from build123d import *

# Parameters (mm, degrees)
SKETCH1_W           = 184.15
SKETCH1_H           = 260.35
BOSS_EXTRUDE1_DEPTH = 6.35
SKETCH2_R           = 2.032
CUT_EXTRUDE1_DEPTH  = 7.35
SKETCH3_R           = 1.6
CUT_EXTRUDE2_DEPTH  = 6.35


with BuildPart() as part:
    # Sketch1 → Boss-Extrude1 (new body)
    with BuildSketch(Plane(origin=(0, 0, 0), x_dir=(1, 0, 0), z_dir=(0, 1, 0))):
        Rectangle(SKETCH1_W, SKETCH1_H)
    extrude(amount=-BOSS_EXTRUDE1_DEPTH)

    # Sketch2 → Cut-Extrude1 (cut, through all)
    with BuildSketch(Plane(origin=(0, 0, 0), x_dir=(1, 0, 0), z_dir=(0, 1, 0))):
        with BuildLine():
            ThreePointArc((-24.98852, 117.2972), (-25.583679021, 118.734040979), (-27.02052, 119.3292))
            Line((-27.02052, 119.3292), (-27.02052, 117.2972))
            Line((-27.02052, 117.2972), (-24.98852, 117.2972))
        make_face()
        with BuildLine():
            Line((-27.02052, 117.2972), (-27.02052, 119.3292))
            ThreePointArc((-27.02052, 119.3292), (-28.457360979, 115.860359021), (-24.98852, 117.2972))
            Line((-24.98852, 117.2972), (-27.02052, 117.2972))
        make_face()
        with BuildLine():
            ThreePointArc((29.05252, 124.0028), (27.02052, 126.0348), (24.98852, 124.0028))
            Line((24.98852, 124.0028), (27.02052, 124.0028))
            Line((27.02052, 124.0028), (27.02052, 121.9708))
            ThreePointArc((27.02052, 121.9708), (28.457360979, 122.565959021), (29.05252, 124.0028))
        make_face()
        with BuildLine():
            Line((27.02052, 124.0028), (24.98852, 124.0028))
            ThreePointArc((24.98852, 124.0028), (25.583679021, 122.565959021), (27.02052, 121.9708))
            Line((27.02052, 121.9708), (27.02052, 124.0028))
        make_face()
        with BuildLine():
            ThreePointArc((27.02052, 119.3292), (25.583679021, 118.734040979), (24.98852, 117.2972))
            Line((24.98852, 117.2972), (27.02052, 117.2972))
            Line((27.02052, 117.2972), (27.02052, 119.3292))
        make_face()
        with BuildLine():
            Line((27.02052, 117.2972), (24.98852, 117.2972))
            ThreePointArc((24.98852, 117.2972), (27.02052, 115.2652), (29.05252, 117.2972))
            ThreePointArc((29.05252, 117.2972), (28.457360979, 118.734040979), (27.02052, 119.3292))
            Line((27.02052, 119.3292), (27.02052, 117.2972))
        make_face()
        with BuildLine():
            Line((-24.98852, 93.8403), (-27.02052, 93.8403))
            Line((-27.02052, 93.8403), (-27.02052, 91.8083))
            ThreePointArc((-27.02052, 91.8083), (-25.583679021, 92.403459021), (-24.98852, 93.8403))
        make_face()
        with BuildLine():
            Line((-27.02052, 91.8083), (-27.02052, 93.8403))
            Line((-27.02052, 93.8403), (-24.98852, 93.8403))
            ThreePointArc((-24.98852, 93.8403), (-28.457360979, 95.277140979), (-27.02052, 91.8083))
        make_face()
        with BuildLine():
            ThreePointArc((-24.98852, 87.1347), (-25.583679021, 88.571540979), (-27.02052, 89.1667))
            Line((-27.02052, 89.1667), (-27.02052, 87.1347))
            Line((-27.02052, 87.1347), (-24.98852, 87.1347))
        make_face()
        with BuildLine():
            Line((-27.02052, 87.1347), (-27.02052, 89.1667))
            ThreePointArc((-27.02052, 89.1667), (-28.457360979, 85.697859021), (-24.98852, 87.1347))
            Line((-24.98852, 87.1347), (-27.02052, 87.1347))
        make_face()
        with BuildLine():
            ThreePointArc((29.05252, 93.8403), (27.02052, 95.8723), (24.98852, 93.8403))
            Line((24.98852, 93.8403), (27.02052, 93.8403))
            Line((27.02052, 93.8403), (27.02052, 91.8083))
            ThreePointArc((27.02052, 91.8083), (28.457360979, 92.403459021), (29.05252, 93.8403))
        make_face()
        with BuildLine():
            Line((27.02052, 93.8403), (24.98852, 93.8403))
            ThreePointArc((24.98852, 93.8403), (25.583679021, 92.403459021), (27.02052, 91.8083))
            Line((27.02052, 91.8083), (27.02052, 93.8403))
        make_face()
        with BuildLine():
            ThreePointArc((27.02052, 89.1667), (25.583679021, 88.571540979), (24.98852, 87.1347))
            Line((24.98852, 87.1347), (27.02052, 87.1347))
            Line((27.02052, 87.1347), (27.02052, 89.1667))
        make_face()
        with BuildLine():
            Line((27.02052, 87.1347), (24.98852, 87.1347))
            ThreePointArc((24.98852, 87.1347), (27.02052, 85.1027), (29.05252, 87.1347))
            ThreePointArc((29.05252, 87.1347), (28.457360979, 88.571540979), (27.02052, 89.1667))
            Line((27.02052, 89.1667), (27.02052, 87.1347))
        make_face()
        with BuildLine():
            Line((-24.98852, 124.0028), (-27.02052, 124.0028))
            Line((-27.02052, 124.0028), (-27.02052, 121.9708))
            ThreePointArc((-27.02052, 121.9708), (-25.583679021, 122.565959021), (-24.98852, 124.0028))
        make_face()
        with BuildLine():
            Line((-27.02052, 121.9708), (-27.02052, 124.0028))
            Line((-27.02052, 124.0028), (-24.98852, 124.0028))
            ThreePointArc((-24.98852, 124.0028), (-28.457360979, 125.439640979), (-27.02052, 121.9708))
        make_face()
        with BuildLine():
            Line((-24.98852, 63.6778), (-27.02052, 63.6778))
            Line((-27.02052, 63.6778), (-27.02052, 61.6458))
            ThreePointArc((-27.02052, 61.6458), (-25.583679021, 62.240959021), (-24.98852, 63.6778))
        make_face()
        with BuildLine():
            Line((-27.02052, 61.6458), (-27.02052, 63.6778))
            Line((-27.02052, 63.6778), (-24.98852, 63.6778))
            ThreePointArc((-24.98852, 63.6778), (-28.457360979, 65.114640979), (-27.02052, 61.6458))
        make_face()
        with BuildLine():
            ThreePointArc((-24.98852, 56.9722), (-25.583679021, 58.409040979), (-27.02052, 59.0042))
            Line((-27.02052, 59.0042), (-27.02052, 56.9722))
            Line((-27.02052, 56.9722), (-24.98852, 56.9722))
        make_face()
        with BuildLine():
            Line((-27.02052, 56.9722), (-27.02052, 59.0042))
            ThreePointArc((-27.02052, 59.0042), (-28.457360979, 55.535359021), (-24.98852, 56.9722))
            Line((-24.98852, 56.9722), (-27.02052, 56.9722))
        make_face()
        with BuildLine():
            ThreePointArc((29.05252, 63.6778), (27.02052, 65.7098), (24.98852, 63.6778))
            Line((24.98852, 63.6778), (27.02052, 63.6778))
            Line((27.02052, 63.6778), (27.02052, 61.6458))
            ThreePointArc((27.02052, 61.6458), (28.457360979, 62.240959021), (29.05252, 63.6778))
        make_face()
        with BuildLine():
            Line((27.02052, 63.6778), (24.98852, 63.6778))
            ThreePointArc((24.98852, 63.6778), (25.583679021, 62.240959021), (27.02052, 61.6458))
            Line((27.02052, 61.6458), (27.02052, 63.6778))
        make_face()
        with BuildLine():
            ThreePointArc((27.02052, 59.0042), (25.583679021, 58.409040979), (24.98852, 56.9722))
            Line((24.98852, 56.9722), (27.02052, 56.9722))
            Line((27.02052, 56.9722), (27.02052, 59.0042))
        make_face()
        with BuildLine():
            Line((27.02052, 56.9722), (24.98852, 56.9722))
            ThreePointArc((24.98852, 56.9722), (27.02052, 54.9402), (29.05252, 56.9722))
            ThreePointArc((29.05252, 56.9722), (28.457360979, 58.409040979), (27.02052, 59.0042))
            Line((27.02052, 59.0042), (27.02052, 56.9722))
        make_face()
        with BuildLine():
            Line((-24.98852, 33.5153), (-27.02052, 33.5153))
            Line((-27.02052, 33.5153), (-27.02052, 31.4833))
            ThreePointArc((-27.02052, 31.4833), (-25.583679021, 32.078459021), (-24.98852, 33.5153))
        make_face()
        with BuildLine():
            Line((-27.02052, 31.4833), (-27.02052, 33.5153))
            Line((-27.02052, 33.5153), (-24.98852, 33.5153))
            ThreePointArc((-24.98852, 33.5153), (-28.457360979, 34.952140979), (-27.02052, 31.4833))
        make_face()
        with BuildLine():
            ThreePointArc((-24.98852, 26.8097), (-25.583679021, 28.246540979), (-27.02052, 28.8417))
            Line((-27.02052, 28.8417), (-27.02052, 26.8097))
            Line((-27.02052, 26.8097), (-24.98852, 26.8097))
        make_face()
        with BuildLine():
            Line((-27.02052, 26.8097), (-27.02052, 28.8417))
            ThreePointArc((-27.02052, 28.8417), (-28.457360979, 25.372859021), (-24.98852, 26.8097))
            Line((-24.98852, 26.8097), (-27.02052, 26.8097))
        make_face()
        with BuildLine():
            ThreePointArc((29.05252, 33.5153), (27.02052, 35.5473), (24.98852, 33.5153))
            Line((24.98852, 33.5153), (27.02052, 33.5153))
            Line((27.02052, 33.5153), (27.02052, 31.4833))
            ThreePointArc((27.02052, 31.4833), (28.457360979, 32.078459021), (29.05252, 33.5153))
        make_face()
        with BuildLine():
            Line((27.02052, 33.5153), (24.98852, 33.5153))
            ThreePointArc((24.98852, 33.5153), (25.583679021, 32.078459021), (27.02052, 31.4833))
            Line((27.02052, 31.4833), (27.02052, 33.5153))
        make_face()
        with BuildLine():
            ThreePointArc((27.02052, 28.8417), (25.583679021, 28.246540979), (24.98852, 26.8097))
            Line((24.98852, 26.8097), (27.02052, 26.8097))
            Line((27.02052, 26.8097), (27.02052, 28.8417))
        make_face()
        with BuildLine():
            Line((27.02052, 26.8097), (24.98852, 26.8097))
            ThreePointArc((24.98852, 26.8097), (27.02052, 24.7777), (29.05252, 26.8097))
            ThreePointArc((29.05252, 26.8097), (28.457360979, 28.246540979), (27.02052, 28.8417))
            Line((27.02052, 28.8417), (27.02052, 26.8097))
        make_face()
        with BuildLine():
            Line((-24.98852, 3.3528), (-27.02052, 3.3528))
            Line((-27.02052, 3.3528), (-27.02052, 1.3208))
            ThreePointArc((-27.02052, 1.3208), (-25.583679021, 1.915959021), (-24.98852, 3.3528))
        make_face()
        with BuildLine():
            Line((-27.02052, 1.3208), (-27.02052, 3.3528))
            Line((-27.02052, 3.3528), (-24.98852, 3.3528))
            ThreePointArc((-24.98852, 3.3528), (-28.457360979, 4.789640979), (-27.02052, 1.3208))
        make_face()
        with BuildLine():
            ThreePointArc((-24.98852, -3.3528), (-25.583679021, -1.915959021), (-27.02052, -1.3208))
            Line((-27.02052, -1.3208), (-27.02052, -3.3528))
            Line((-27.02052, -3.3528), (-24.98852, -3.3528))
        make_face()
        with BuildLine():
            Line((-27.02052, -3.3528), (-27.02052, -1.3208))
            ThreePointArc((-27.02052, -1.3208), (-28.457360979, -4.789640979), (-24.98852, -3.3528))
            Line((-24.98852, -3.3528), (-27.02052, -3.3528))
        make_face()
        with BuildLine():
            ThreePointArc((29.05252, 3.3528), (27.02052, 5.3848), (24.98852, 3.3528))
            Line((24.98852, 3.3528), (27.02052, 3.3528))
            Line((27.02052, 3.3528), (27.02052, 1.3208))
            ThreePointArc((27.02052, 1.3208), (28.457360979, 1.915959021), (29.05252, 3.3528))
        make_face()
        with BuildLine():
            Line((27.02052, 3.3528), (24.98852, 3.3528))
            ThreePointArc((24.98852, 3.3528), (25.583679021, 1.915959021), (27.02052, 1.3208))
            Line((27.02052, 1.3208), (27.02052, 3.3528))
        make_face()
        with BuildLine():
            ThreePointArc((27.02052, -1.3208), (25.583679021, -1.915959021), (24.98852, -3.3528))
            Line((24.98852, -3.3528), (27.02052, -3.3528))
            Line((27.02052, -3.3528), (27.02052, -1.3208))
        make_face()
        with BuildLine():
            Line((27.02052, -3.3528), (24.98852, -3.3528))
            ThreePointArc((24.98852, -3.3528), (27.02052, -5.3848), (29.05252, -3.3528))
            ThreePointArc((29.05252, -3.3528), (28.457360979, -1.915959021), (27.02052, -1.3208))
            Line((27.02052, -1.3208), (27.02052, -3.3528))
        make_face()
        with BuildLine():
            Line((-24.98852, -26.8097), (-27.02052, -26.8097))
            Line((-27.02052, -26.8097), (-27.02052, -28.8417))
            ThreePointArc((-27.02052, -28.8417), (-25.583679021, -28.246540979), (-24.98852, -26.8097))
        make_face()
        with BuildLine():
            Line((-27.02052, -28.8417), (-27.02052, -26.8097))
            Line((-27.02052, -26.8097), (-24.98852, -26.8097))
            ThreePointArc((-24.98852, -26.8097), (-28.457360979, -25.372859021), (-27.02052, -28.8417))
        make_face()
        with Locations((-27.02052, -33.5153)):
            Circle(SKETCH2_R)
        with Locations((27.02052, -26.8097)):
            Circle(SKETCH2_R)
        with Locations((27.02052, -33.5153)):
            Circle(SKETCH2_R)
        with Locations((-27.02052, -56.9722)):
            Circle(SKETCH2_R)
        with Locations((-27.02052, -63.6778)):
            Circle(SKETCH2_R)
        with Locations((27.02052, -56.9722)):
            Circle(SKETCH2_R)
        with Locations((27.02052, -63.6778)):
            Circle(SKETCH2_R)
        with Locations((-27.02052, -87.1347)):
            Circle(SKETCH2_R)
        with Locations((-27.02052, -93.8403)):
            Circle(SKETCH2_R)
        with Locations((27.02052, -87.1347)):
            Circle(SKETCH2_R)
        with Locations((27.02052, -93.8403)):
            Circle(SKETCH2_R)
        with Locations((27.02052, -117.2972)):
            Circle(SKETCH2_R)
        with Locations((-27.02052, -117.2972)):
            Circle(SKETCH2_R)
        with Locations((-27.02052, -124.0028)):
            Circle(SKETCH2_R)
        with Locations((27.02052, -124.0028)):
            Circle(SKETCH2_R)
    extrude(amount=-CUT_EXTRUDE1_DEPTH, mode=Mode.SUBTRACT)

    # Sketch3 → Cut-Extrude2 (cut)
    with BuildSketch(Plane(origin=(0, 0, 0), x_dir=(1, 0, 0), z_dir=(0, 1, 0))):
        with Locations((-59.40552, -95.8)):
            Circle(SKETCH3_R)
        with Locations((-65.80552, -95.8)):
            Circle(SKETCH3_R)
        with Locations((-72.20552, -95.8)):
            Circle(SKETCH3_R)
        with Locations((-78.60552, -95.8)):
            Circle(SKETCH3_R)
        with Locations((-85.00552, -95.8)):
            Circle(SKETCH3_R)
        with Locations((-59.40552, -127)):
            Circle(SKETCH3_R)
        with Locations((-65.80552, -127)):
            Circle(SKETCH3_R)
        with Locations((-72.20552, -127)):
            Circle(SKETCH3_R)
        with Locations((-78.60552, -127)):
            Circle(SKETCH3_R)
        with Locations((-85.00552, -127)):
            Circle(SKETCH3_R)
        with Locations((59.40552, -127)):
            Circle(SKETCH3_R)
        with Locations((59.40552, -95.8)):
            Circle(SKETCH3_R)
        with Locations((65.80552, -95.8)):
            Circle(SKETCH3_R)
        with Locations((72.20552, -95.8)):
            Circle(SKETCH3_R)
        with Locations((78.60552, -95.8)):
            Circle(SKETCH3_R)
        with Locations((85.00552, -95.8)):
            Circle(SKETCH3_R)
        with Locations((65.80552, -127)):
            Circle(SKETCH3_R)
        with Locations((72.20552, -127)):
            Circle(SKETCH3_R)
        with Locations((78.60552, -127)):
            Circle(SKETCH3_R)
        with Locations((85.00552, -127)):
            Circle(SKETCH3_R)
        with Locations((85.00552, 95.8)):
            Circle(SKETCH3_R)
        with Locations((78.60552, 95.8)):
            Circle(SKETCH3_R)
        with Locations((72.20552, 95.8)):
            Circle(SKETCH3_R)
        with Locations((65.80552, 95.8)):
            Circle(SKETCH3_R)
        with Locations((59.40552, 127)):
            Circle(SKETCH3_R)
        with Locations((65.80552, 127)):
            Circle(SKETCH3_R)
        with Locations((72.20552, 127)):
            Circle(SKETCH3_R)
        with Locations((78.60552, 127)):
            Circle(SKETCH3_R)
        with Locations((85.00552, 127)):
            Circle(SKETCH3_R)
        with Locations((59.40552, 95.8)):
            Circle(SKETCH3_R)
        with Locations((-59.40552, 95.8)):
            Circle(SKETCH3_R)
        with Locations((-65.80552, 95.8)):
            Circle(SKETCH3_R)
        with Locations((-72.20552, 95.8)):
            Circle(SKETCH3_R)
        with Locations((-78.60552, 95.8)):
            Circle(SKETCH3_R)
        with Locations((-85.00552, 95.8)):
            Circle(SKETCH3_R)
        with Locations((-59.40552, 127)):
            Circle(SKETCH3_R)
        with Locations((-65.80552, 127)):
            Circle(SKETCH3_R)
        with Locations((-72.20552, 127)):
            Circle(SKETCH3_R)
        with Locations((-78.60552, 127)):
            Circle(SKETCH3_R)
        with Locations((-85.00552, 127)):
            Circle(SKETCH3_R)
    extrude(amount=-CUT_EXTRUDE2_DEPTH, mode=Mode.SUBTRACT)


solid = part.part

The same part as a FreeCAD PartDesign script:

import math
import FreeCAD as App
import Part
import Sketcher
from FreeCAD import Vector
Q = App.Units.Quantity


def add_polygon(sketch, points):
    """Adds a closed chain of lines whose ends are joined by coincident constraints."""
    first, n = sketch.GeometryCount, len(points)
    for a, b in zip(points, points[1:] + points[:1]):
        sketch.addGeometry(Part.LineSegment(App.Vector(*a, 0), App.Vector(*b, 0)), False)
    for i in range(n):
        sketch.addConstraint(Sketcher.Constraint("Coincident", first + i, 2, first + (i + 1) % n, 1))

doc = App.newDocument("Part")
body = doc.addObject("PartDesign::Body", "Body")

sketch1 = doc.addObject("Sketcher::SketchObject", "Sketch")
body.addObject(sketch1)
sketch1.AttachmentSupport = (doc.XZ_Plane, [""])
sketch1.MapMode = "FlatFace"
add_polygon(sketch1, [(-92.075, -130.175), (-92.075, 130.175), (92.075, 130.175), (92.075, -130.175)])
sketch1.addConstraint([
    Sketcher.Constraint("Vertical", 0),
    Sketcher.Constraint("Horizontal", 1),
    Sketcher.Constraint("Vertical", 2),
    Sketcher.Constraint("Horizontal", 3),
    Sketcher.Constraint("Symmetric", 0, 2, 2, 2, -1, 1),
    Sketcher.Constraint("DistanceX", 1, 1, 1, 2, Q("7.25 in")),
    Sketcher.Constraint("DistanceY", 0, 1, 0, 2, Q("10.25 in")),
])
pad1 = doc.addObject("PartDesign::Pad", "Pad")
body.addObject(pad1)
pad1.Profile = sketch1
pad1.Length = Q("0.25 in")

sketch2 = doc.addObject("Sketcher::SketchObject", "Sketch001")
body.addObject(sketch2)
sketch2.AttachmentSupport = (doc.XZ_Plane, [""])
sketch2.MapMode = "FlatFace"
sketch2.addGeometry([
    Part.ArcOfCircle(Part.Circle(Vector(-27.02052, -117.2972, 0), Vector(0, 0, 1), 2.032), math.radians(-90), math.radians(0)),
    Part.ArcOfCircle(Part.Circle(Vector(-27.02052, -117.2972, 0), Vector(0, 0, 1), 2.032), math.radians(0), math.radians(270)),
    Part.ArcOfCircle(Part.Circle(Vector(27.02052, -124.0028, 0), Vector(0, 0, 1), 2.032), math.radians(180), math.radians(360)),
    Part.ArcOfCircle(Part.Circle(Vector(27.02052, -124.0028, 0), Vector(0, 0, 1), 2.032), math.radians(90), math.radians(180)),
    Part.ArcOfCircle(Part.Circle(Vector(27.02052, -124.0028, 0), Vector(0, 0, 1), 2.032), math.radians(0), math.radians(90)),
    Part.ArcOfCircle(Part.Circle(Vector(27.02052, -117.2972, 0), Vector(0, 0, 1), 2.032), math.radians(-180), math.radians(-90)),
    Part.ArcOfCircle(Part.Circle(Vector(27.02052, -117.2972, 0), Vector(0, 0, 1), 2.032), math.radians(0), math.radians(180)),
    Part.ArcOfCircle(Part.Circle(Vector(27.02052, -117.2972, 0), Vector(0, 0, 1), 2.032), math.radians(-90), math.radians(0)),
    Part.ArcOfCircle(Part.Circle(Vector(-27.02052, -93.8403, 0), Vector(0, 0, 1), 2.032), math.radians(0), math.radians(90)),
    Part.ArcOfCircle(Part.Circle(Vector(-27.02052, -93.8403, 0), Vector(0, 0, 1), 2.032), math.radians(90), math.radians(360)),
    Part.ArcOfCircle(Part.Circle(Vector(-27.02052, -87.1347, 0), Vector(0, 0, 1), 2.032), math.radians(-90), math.radians(0)),
    Part.ArcOfCircle(Part.Circle(Vector(-27.02052, -87.1347, 0), Vector(0, 0, 1), 2.032), math.radians(0), math.radians(270)),
    Part.ArcOfCircle(Part.Circle(Vector(27.02052, -93.8403, 0), Vector(0, 0, 1), 2.032), math.radians(180), math.radians(360)),
    Part.ArcOfCircle(Part.Circle(Vector(27.02052, -93.8403, 0), Vector(0, 0, 1), 2.032), math.radians(90), math.radians(180)),
    Part.ArcOfCircle(Part.Circle(Vector(27.02052, -93.8403, 0), Vector(0, 0, 1), 2.032), math.radians(0), math.radians(90)),
    Part.ArcOfCircle(Part.Circle(Vector(27.02052, -87.1347, 0), Vector(0, 0, 1), 2.032), math.radians(-180), math.radians(-90)),
    Part.ArcOfCircle(Part.Circle(Vector(27.02052, -87.1347, 0), Vector(0, 0, 1), 2.032), math.radians(0), math.radians(180)),
    Part.ArcOfCircle(Part.Circle(Vector(27.02052, -87.1347, 0), Vector(0, 0, 1), 2.032), math.radians(-90), math.radians(0)),
    Part.ArcOfCircle(Part.Circle(Vector(-27.02052, -124.0028, 0), Vector(0, 0, 1), 2.032), math.radians(0), math.radians(90)),
    Part.ArcOfCircle(Part.Circle(Vector(-27.02052, -124.0028, 0), Vector(0, 0, 1), 2.032), math.radians(90), math.radians(360)),
    Part.ArcOfCircle(Part.Circle(Vector(-27.02052, -63.6778, 0), Vector(0, 0, 1), 2.032), math.radians(0), math.radians(90)),
    Part.ArcOfCircle(Part.Circle(Vector(-27.02052, -63.6778, 0), Vector(0, 0, 1), 2.032), math.radians(90), math.radians(360)),
    Part.ArcOfCircle(Part.Circle(Vector(-27.02052, -56.9722, 0), Vector(0, 0, 1), 2.032), math.radians(-90), math.radians(0)),
    Part.ArcOfCircle(Part.Circle(Vector(-27.02052, -56.9722, 0), Vector(0, 0, 1), 2.032), math.radians(0), math.radians(270)),
    Part.ArcOfCircle(Part.Circle(Vector(27.02052, -63.6778, 0), Vector(0, 0, 1), 2.032), math.radians(180), math.radians(360)),
    Part.ArcOfCircle(Part.Circle(Vector(27.02052, -63.6778, 0), Vector(0, 0, 1), 2.032), math.radians(90), math.radians(180)),
    Part.ArcOfCircle(Part.Circle(Vector(27.02052, -63.6778, 0), Vector(0, 0, 1), 2.032), math.radians(0), math.radians(90)),
    Part.ArcOfCircle(Part.Circle(Vector(27.02052, -56.9722, 0), Vector(0, 0, 1), 2.032), math.radians(-180), math.radians(-90)),
    Part.ArcOfCircle(Part.Circle(Vector(27.02052, -56.9722, 0), Vector(0, 0, 1), 2.032), math.radians(0), math.radians(180)),
    Part.ArcOfCircle(Part.Circle(Vector(27.02052, -56.9722, 0), Vector(0, 0, 1), 2.032), math.radians(-90), math.radians(0)),
    Part.ArcOfCircle(Part.Circle(Vector(-27.02052, -33.5153, 0), Vector(0, 0, 1), 2.032), math.radians(0), math.radians(90)),
    Part.ArcOfCircle(Part.Circle(Vector(-27.02052, -33.5153, 0), Vector(0, 0, 1), 2.032), math.radians(90), math.radians(360)),
    Part.ArcOfCircle(Part.Circle(Vector(-27.02052, -26.8097, 0), Vector(0, 0, 1), 2.032), math.radians(-90), math.radians(0)),
    Part.ArcOfCircle(Part.Circle(Vector(-27.02052, -26.8097, 0), Vector(0, 0, 1), 2.032), math.radians(0), math.radians(270)),
    Part.ArcOfCircle(Part.Circle(Vector(27.02052, -33.5153, 0), Vector(0, 0, 1), 2.032), math.radians(180), math.radians(360)),
    Part.ArcOfCircle(Part.Circle(Vector(27.02052, -33.5153, 0), Vector(0, 0, 1), 2.032), math.radians(90), math.radians(180)),
    Part.ArcOfCircle(Part.Circle(Vector(27.02052, -33.5153, 0), Vector(0, 0, 1), 2.032), math.radians(0), math.radians(90)),
    Part.ArcOfCircle(Part.Circle(Vector(27.02052, -26.8097, 0), Vector(0, 0, 1), 2.032), math.radians(-180), math.radians(-90)),
    Part.ArcOfCircle(Part.Circle(Vector(27.02052, -26.8097, 0), Vector(0, 0, 1), 2.032), math.radians(0), math.radians(180)),
    Part.ArcOfCircle(Part.Circle(Vector(27.02052, -26.8097, 0), Vector(0, 0, 1), 2.032), math.radians(-90), math.radians(0)),
    Part.ArcOfCircle(Part.Circle(Vector(-27.02052, -3.3528, 0), Vector(0, 0, 1), 2.032), math.radians(0), math.radians(90)),
    Part.ArcOfCircle(Part.Circle(Vector(-27.02052, -3.3528, 0), Vector(0, 0, 1), 2.032), math.radians(90), math.radians(360)),
    Part.ArcOfCircle(Part.Circle(Vector(-27.02052, 3.3528, 0), Vector(0, 0, 1), 2.032), math.radians(-90), math.radians(0)),
    Part.ArcOfCircle(Part.Circle(Vector(-27.02052, 3.3528, 0), Vector(0, 0, 1), 2.032), math.radians(0), math.radians(270)),
    Part.ArcOfCircle(Part.Circle(Vector(27.02052, -3.3528, 0), Vector(0, 0, 1), 2.032), math.radians(180), math.radians(360)),
    Part.ArcOfCircle(Part.Circle(Vector(27.02052, -3.3528, 0), Vector(0, 0, 1), 2.032), math.radians(90), math.radians(180)),
    Part.ArcOfCircle(Part.Circle(Vector(27.02052, -3.3528, 0), Vector(0, 0, 1), 2.032), math.radians(0), math.radians(90)),
    Part.ArcOfCircle(Part.Circle(Vector(27.02052, 3.3528, 0), Vector(0, 0, 1), 2.032), math.radians(-180), math.radians(-90)),
    Part.ArcOfCircle(Part.Circle(Vector(27.02052, 3.3528, 0), Vector(0, 0, 1), 2.032), math.radians(0), math.radians(180)),
    Part.ArcOfCircle(Part.Circle(Vector(27.02052, 3.3528, 0), Vector(0, 0, 1), 2.032), math.radians(-90), math.radians(0)),
    Part.ArcOfCircle(Part.Circle(Vector(-27.02052, 26.8097, 0), Vector(0, 0, 1), 2.032), math.radians(0), math.radians(90)),
    Part.ArcOfCircle(Part.Circle(Vector(-27.02052, 26.8097, 0), Vector(0, 0, 1), 2.032), math.radians(90), math.radians(360)),
    Part.Circle(Vector(-27.02052, 33.5153, 0), Vector(0, 0, 1), 2.032),
    Part.Circle(Vector(27.02052, 26.8097, 0), Vector(0, 0, 1), 2.032),
    Part.Circle(Vector(27.02052, 33.5153, 0), Vector(0, 0, 1), 2.032),
    Part.Circle(Vector(-27.02052, 56.9722, 0), Vector(0, 0, 1), 2.032),
    Part.Circle(Vector(-27.02052, 63.6778, 0), Vector(0, 0, 1), 2.032),
    Part.Circle(Vector(27.02052, 56.9722, 0), Vector(0, 0, 1), 2.032),
    Part.Circle(Vector(27.02052, 63.6778, 0), Vector(0, 0, 1), 2.032),
    Part.Circle(Vector(-27.02052, 87.1347, 0), Vector(0, 0, 1), 2.032),
    Part.Circle(Vector(-27.02052, 93.8403, 0), Vector(0, 0, 1), 2.032),
    Part.Circle(Vector(27.02052, 87.1347, 0), Vector(0, 0, 1), 2.032),
    Part.Circle(Vector(27.02052, 93.8403, 0), Vector(0, 0, 1), 2.032),
    Part.Circle(Vector(27.02052, 117.2972, 0), Vector(0, 0, 1), 2.032),
    Part.Circle(Vector(-27.02052, 117.2972, 0), Vector(0, 0, 1), 2.032),
    Part.Circle(Vector(-27.02052, 124.0028, 0), Vector(0, 0, 1), 2.032),
    Part.Circle(Vector(27.02052, 124.0028, 0), Vector(0, 0, 1), 2.032),
], False)
sketch2.addConstraint([
    Sketcher.Constraint("Tangent", 0, 1, 1, 2),
    Sketcher.Constraint("Coincident", 1, 1, 0, 2),
    Sketcher.Constraint("Tangent", 2, 1, 3, 2),
    Sketcher.Constraint("Tangent", 3, 1, 4, 2),
    Sketcher.Constraint("Tangent", 4, 1, 2, 2),
    Sketcher.Constraint("Tangent", 5, 1, 6, 2),
    Sketcher.Constraint("Tangent", 6, 1, 7, 2),
    Sketcher.Constraint("Tangent", 7, 1, 5, 2),
    Sketcher.Constraint("Tangent", 8, 1, 9, 2),
    Sketcher.Constraint("Coincident", 9, 1, 8, 2),
    Sketcher.Constraint("Tangent", 10, 1, 11, 2),
    Sketcher.Constraint("Coincident", 11, 1, 10, 2),
    Sketcher.Constraint("Tangent", 12, 1, 13, 2),
    Sketcher.Constraint("Tangent", 13, 1, 14, 2),
    Sketcher.Constraint("Tangent", 14, 1, 12, 2),
    Sketcher.Constraint("Tangent", 15, 1, 16, 2),
    Sketcher.Constraint("Tangent", 16, 1, 17, 2),
    Sketcher.Constraint("Tangent", 17, 1, 15, 2),
    Sketcher.Constraint("Tangent", 18, 1, 19, 2),
    Sketcher.Constraint("Coincident", 19, 1, 18, 2),
    Sketcher.Constraint("Tangent", 20, 1, 21, 2),
    Sketcher.Constraint("Coincident", 21, 1, 20, 2),
    Sketcher.Constraint("Tangent", 22, 1, 23, 2),
    Sketcher.Constraint("Coincident", 23, 1, 22, 2),
    Sketcher.Constraint("Tangent", 24, 1, 25, 2),
    Sketcher.Constraint("Tangent", 25, 1, 26, 2),
    Sketcher.Constraint("Tangent", 26, 1, 24, 2),
    Sketcher.Constraint("Tangent", 27, 1, 28, 2),
    Sketcher.Constraint("Tangent", 28, 1, 29, 2),
    Sketcher.Constraint("Tangent", 29, 1, 27, 2),
    Sketcher.Constraint("Tangent", 30, 1, 31, 2),
    Sketcher.Constraint("Coincident", 31, 1, 30, 2),
    Sketcher.Constraint("Tangent", 32, 1, 33, 2),
    Sketcher.Constraint("Coincident", 33, 1, 32, 2),
    Sketcher.Constraint("Tangent", 34, 1, 35, 2),
    Sketcher.Constraint("Tangent", 35, 1, 36, 2),
    Sketcher.Constraint("Tangent", 36, 1, 34, 2),
    Sketcher.Constraint("Tangent", 37, 1, 38, 2),
    Sketcher.Constraint("Tangent", 38, 1, 39, 2),
    Sketcher.Constraint("Tangent", 39, 1, 37, 2),
    Sketcher.Constraint("Tangent", 40, 1, 41, 2),
    Sketcher.Constraint("Coincident", 41, 1, 40, 2),
    Sketcher.Constraint("Tangent", 42, 1, 43, 2),
    Sketcher.Constraint("Coincident", 43, 1, 42, 2),
    Sketcher.Constraint("Tangent", 44, 1, 45, 2),
    Sketcher.Constraint("Tangent", 45, 1, 46, 2),
    Sketcher.Constraint("Tangent", 46, 1, 44, 2),
    Sketcher.Constraint("Tangent", 47, 1, 48, 2),
    Sketcher.Constraint("Tangent", 48, 1, 49, 2),
    Sketcher.Constraint("Tangent", 49, 1, 47, 2),
    Sketcher.Constraint("Tangent", 50, 1, 51, 2),
    Sketcher.Constraint("Coincident", 51, 1, 50, 2),
    Sketcher.Constraint("Equal", 1, 2),
    Sketcher.Constraint("Equal", 4, 5),
    Sketcher.Constraint("Equal", 7, 8),
    Sketcher.Constraint("Equal", 9, 10),
    Sketcher.Constraint("Equal", 11, 12),
    Sketcher.Constraint("Equal", 14, 15),
    Sketcher.Constraint("Equal", 17, 18),
    Sketcher.Constraint("Equal", 19, 20),
    Sketcher.Constraint("Equal", 21, 22),
    Sketcher.Constraint("Equal", 23, 24),
    Sketcher.Constraint("Equal", 26, 27),
    Sketcher.Constraint("Equal", 29, 30),
    Sketcher.Constraint("Equal", 31, 32),
    Sketcher.Constraint("Equal", 33, 34),
    Sketcher.Constraint("Equal", 36, 37),
    Sketcher.Constraint("Equal", 39, 40),
    Sketcher.Constraint("Equal", 41, 42),
    Sketcher.Constraint("Equal", 43, 44),
    Sketcher.Constraint("Equal", 46, 47),
    Sketcher.Constraint("Equal", 49, 50),
    Sketcher.Constraint("Equal", 51, 52),
    Sketcher.Constraint("Equal", 52, 53),
    Sketcher.Constraint("Equal", 53, 54),
    Sketcher.Constraint("Equal", 54, 55),
    Sketcher.Constraint("Equal", 55, 56),
    Sketcher.Constraint("Equal", 56, 57),
    Sketcher.Constraint("Equal", 57, 58),
    Sketcher.Constraint("Equal", 58, 59),
    Sketcher.Constraint("Equal", 59, 60),
    Sketcher.Constraint("Equal", 60, 61),
    Sketcher.Constraint("Equal", 61, 62),
    Sketcher.Constraint("Equal", 62, 63),
    Sketcher.Constraint("Equal", 63, 64),
    Sketcher.Constraint("Equal", 64, 65),
    Sketcher.Constraint("Equal", 65, 66),
    Sketcher.Constraint("Symmetric", 42, 3, 44, 3, -1, 1),
    Sketcher.Constraint("Symmetric", 40, 3, 47, 3, -1, 1),
    Sketcher.Constraint("Symmetric", 37, 3, 50, 3, -1, 1),
    Sketcher.Constraint("Symmetric", 34, 3, 52, 3, -1, 1),
    Sketcher.Constraint("Symmetric", 32, 3, 53, 3, -1, 1),
    Sketcher.Constraint("Symmetric", 30, 3, 54, 3, -1, 1),
    Sketcher.Constraint("Symmetric", 27, 3, 55, 3, -1, 1),
    Sketcher.Constraint("Symmetric", 24, 3, 56, 3, -1, 1),
    Sketcher.Constraint("Symmetric", 22, 3, 57, 3, -1, 1),
    Sketcher.Constraint("Symmetric", 20, 3, 58, 3, -1, 1),
    Sketcher.Constraint("Symmetric", 15, 3, 59, 3, -1, 1),
    Sketcher.Constraint("Symmetric", 12, 3, 60, 3, -1, 1),
    Sketcher.Constraint("Symmetric", 10, 3, 61, 3, -1, 1),
    Sketcher.Constraint("Symmetric", 8, 3, 62, 3, -1, 1),
    Sketcher.Constraint("Symmetric", 0, 3, 63, 3, -1, 1),
    Sketcher.Constraint("Symmetric", 5, 3, 64, 3, -1, 1),
    Sketcher.Constraint("Symmetric", 2, 3, 65, 3, -1, 1),
    Sketcher.Constraint("Symmetric", 18, 3, 66, 3, -1, 1),
    Sketcher.Constraint("Symmetric", 0, 3, 5, 3, -2),
    Sketcher.Constraint("Symmetric", 8, 3, 12, 3, -2),
    Sketcher.Constraint("Symmetric", 10, 3, 15, 3, -2),
    Sketcher.Constraint("Symmetric", 2, 3, 18, 3, -2),
    Sketcher.Constraint("Symmetric", 20, 3, 24, 3, -2),
    Sketcher.Constraint("Symmetric", 22, 3, 27, 3, -2),
    Sketcher.Constraint("Symmetric", 30, 3, 34, 3, -2),
    Sketcher.Constraint("Symmetric", 32, 3, 37, 3, -2),
    Sketcher.Constraint("Symmetric", 40, 3, 44, 3, -2),
    Sketcher.Constraint("Horizontal", 7, 3, 1, 1),
    Sketcher.Constraint("Horizontal", 19, 3, 2, 1),
    Sketcher.Constraint("Horizontal", 2, 1, 4, 1),
    Sketcher.Constraint("Horizontal", 1, 1, 5, 1),
    Sketcher.Constraint("Horizontal", 5, 1, 6, 1),
    Sketcher.Constraint("Horizontal", 14, 3, 8, 1),
    Sketcher.Constraint("Horizontal", 17, 3, 11, 1),
    Sketcher.Constraint("Horizontal", 8, 1, 12, 1),
    Sketcher.Constraint("Horizontal", 12, 1, 14, 1),
    Sketcher.Constraint("Horizontal", 11, 1, 15, 1),
    Sketcher.Constraint("Horizontal", 15, 1, 16, 1),
    Sketcher.Constraint("Horizontal", 4, 1, 18, 1),
    Sketcher.Constraint("Horizontal", 26, 3, 20, 1),
    Sketcher.Constraint("Horizontal", 29, 3, 23, 1),
    Sketcher.Constraint("Horizontal", 20, 1, 24, 1),
    Sketcher.Constraint("Horizontal", 24, 1, 26, 1),
    Sketcher.Constraint("Horizontal", 23, 1, 27, 1),
    Sketcher.Constraint("Horizontal", 27, 1, 28, 1),
    Sketcher.Constraint("Horizontal", 36, 3, 30, 1),
    Sketcher.Constraint("Horizontal", 39, 3, 33, 1),
    Sketcher.Constraint("Horizontal", 30, 1, 34, 1),
    Sketcher.Constraint("Horizontal", 34, 1, 36, 1),
    Sketcher.Constraint("Horizontal", 33, 1, 37, 1),
    Sketcher.Constraint("Horizontal", 37, 1, 38, 1),
    Sketcher.Constraint("Horizontal", 46, 3, 40, 1),
    Sketcher.Constraint("Horizontal", 49, 3, 43, 1),
    Sketcher.Constraint("Horizontal", 40, 1, 44, 1),
    Sketcher.Constraint("Horizontal", 44, 1, 46, 1),
    Sketcher.Constraint("Horizontal", 43, 1, 47, 1),
    Sketcher.Constraint("Horizontal", 47, 1, 48, 1),
    Sketcher.Constraint("Horizontal", 53, 3, 50, 1),
    Sketcher.Constraint("Vertical", 4, 3, 5, 3),
    Sketcher.Constraint("Vertical", 1, 3, 8, 3),
    Sketcher.Constraint("Vertical", 9, 3, 10, 3),
    Sketcher.Constraint("Vertical", 19, 3, 20, 3),
    Sketcher.Constraint("Vertical", 21, 3, 22, 3),
    Sketcher.Constraint("Vertical", 23, 3, 30, 3),
    Sketcher.Constraint("Vertical", 31, 3, 32, 3),
    Sketcher.Constraint("Vertical", 33, 3, 40, 3),
    Sketcher.Constraint("Vertical", 65, 3, 0, 1),
    Sketcher.Constraint("Vertical", 66, 3, 3, 1),
    Sketcher.Constraint("Vertical", 3, 1, 7, 1),
    Sketcher.Constraint("Vertical", 0, 1, 9, 1),
    Sketcher.Constraint("Vertical", 9, 1, 10, 1),
    Sketcher.Constraint("Vertical", 7, 1, 13, 1),
    Sketcher.Constraint("Vertical", 13, 1, 17, 1),
    Sketcher.Constraint("Vertical", 10, 1, 19, 1),
    Sketcher.Constraint("Vertical", 19, 1, 21, 1),
    Sketcher.Constraint("Vertical", 21, 1, 22, 1),
    Sketcher.Constraint("Vertical", 17, 1, 25, 1),
    Sketcher.Constraint("Vertical", 25, 1, 29, 1),
    Sketcher.Constraint("Vertical", 22, 1, 31, 1),
    Sketcher.Constraint("Vertical", 31, 1, 32, 1),
    Sketcher.Constraint("Vertical", 29, 1, 35, 1),
    Sketcher.Constraint("Vertical", 35, 1, 39, 1),
    Sketcher.Constraint("Vertical", 32, 1, 41, 1),
    Sketcher.Constraint("Vertical", 41, 1, 42, 1),
    Sketcher.Constraint("Vertical", 39, 1, 45, 1),
    Sketcher.Constraint("Vertical", 45, 1, 49, 1),
    Sketcher.Constraint("Vertical", 42, 1, 51, 1),
    Sketcher.Constraint("Diameter", 52, Q("0.16 in")),
    Sketcher.Constraint("DistanceY", 0, 3, -1, 1, Q("4.618 in")),
    Sketcher.Constraint("DistanceY", 2, 3, -1, 1, Q("4.882 in")),
    Sketcher.Constraint("DistanceY", 20, 3, -1, 1, Q("2.507 in")),
    Sketcher.Constraint("DistanceY", 22, 3, -1, 1, Q("2.243 in")),
    Sketcher.Constraint("DistanceY", 40, 3, -1, 1, Q("0.132 in")),
    Sketcher.Constraint("DistanceX", 0, 3, -1, 1, Q("1.0638 in")),
    Sketcher.Constraint("DistanceY", 8, 3, -1, 1, Q("3.6945 in")),
    Sketcher.Constraint("DistanceY", 10, 3, -1, 1, Q("3.4305 in")),
    Sketcher.Constraint("DistanceY", 30, 3, -1, 1, Q("1.3195 in")),
    Sketcher.Constraint("DistanceY", 32, 3, -1, 1, Q("1.0555 in")),
])
pocket1 = doc.addObject("PartDesign::Pocket", "Pocket")
body.addObject(pocket1)
pocket1.Profile = sketch2
pocket1.Type = "ThroughAll"
pocket1.Reversed = True

sketch3 = doc.addObject("Sketcher::SketchObject", "Sketch002")
body.addObject(sketch3)
sketch3.AttachmentSupport = (doc.XZ_Plane, [""])
sketch3.MapMode = "FlatFace"
sketch3.addGeometry([
    Part.Circle(Vector(-59.40552, 95.8, 0), Vector(0, 0, 1), 1.6),
    Part.Circle(Vector(-65.80552, 95.8, 0), Vector(0, 0, 1), 1.6),
    Part.Circle(Vector(-72.20552, 95.8, 0), Vector(0, 0, 1), 1.6),
    Part.Circle(Vector(-78.60552, 95.8, 0), Vector(0, 0, 1), 1.6),
    Part.Circle(Vector(-85.00552, 95.8, 0), Vector(0, 0, 1), 1.6),
    Part.Circle(Vector(-59.40552, 127, 0), Vector(0, 0, 1), 1.6),
    Part.Circle(Vector(-65.80552, 127, 0), Vector(0, 0, 1), 1.6),
    Part.Circle(Vector(-72.20552, 127, 0), Vector(0, 0, 1), 1.6),
    Part.Circle(Vector(-78.60552, 127, 0), Vector(0, 0, 1), 1.6),
    Part.Circle(Vector(-85.00552, 127, 0), Vector(0, 0, 1), 1.6),
    Part.Circle(Vector(59.40552, 127, 0), Vector(0, 0, 1), 1.6),
    Part.Circle(Vector(59.40552, 95.8, 0), Vector(0, 0, 1), 1.6),
    Part.Circle(Vector(65.80552, 95.8, 0), Vector(0, 0, 1), 1.6),
    Part.Circle(Vector(72.20552, 95.8, 0), Vector(0, 0, 1), 1.6),
    Part.Circle(Vector(78.60552, 95.8, 0), Vector(0, 0, 1), 1.6),
    Part.Circle(Vector(85.00552, 95.8, 0), Vector(0, 0, 1), 1.6),
    Part.Circle(Vector(65.80552, 127, 0), Vector(0, 0, 1), 1.6),
    Part.Circle(Vector(72.20552, 127, 0), Vector(0, 0, 1), 1.6),
    Part.Circle(Vector(78.60552, 127, 0), Vector(0, 0, 1), 1.6),
    Part.Circle(Vector(85.00552, 127, 0), Vector(0, 0, 1), 1.6),
    Part.Circle(Vector(85.00552, -95.8, 0), Vector(0, 0, 1), 1.6),
    Part.Circle(Vector(78.60552, -95.8, 0), Vector(0, 0, 1), 1.6),
    Part.Circle(Vector(72.20552, -95.8, 0), Vector(0, 0, 1), 1.6),
    Part.Circle(Vector(65.80552, -95.8, 0), Vector(0, 0, 1), 1.6),
    Part.Circle(Vector(59.40552, -127, 0), Vector(0, 0, 1), 1.6),
    Part.Circle(Vector(65.80552, -127, 0), Vector(0, 0, 1), 1.6),
    Part.Circle(Vector(72.20552, -127, 0), Vector(0, 0, 1), 1.6),
    Part.Circle(Vector(78.60552, -127, 0), Vector(0, 0, 1), 1.6),
    Part.Circle(Vector(85.00552, -127, 0), Vector(0, 0, 1), 1.6),
    Part.Circle(Vector(59.40552, -95.8, 0), Vector(0, 0, 1), 1.6),
    Part.Circle(Vector(-59.40552, -95.8, 0), Vector(0, 0, 1), 1.6),
    Part.Circle(Vector(-65.80552, -95.8, 0), Vector(0, 0, 1), 1.6),
    Part.Circle(Vector(-72.20552, -95.8, 0), Vector(0, 0, 1), 1.6),
    Part.Circle(Vector(-78.60552, -95.8, 0), Vector(0, 0, 1), 1.6),
    Part.Circle(Vector(-85.00552, -95.8, 0), Vector(0, 0, 1), 1.6),
    Part.Circle(Vector(-59.40552, -127, 0), Vector(0, 0, 1), 1.6),
    Part.Circle(Vector(-65.80552, -127, 0), Vector(0, 0, 1), 1.6),
    Part.Circle(Vector(-72.20552, -127, 0), Vector(0, 0, 1), 1.6),
    Part.Circle(Vector(-78.60552, -127, 0), Vector(0, 0, 1), 1.6),
    Part.Circle(Vector(-85.00552, -127, 0), Vector(0, 0, 1), 1.6),
], False)
sketch3.addConstraint([
    Sketcher.Constraint("Equal", 0, 1),
    Sketcher.Constraint("Equal", 1, 2),
    Sketcher.Constraint("Equal", 2, 3),
    Sketcher.Constraint("Equal", 3, 4),
    Sketcher.Constraint("Equal", 4, 5),
    Sketcher.Constraint("Equal", 5, 6),
    Sketcher.Constraint("Equal", 6, 7),
    Sketcher.Constraint("Equal", 7, 8),
    Sketcher.Constraint("Equal", 8, 9),
    Sketcher.Constraint("Equal", 9, 10),
    Sketcher.Constraint("Equal", 10, 11),
    Sketcher.Constraint("Equal", 11, 12),
    Sketcher.Constraint("Equal", 12, 13),
    Sketcher.Constraint("Equal", 13, 14),
    Sketcher.Constraint("Equal", 14, 15),
    Sketcher.Constraint("Equal", 15, 16),
    Sketcher.Constraint("Equal", 16, 17),
    Sketcher.Constraint("Equal", 17, 18),
    Sketcher.Constraint("Equal", 18, 19),
    Sketcher.Constraint("Equal", 19, 20),
    Sketcher.Constraint("Equal", 20, 21),
    Sketcher.Constraint("Equal", 21, 22),
    Sketcher.Constraint("Equal", 22, 23),
    Sketcher.Constraint("Equal", 23, 24),
    Sketcher.Constraint("Equal", 24, 25),
    Sketcher.Constraint("Equal", 25, 26),
    Sketcher.Constraint("Equal", 26, 27),
    Sketcher.Constraint("Equal", 27, 28),
    Sketcher.Constraint("Equal", 28, 29),
    Sketcher.Constraint("Equal", 29, 30),
    Sketcher.Constraint("Equal", 30, 31),
    Sketcher.Constraint("Equal", 31, 32),
    Sketcher.Constraint("Equal", 32, 33),
    Sketcher.Constraint("Equal", 33, 34),
    Sketcher.Constraint("Equal", 34, 35),
    Sketcher.Constraint("Equal", 35, 36),
    Sketcher.Constraint("Equal", 36, 37),
    Sketcher.Constraint("Equal", 37, 38),
    Sketcher.Constraint("Equal", 38, 39),
    Sketcher.Constraint("Symmetric", 4, 3, 20, 3, -1, 1),
    Sketcher.Constraint("Symmetric", 3, 3, 21, 3, -1, 1),
    Sketcher.Constraint("Symmetric", 2, 3, 22, 3, -1, 1),
    Sketcher.Constraint("Symmetric", 1, 3, 23, 3, -1, 1),
    Sketcher.Constraint("Symmetric", 5, 3, 24, 3, -1, 1),
    Sketcher.Constraint("Symmetric", 6, 3, 25, 3, -1, 1),
    Sketcher.Constraint("Symmetric", 7, 3, 26, 3, -1, 1),
    Sketcher.Constraint("Symmetric", 8, 3, 27, 3, -1, 1),
    Sketcher.Constraint("Symmetric", 9, 3, 28, 3, -1, 1),
    Sketcher.Constraint("Symmetric", 0, 3, 29, 3, -1, 1),
    Sketcher.Constraint("Symmetric", 11, 3, 30, 3, -1, 1),
    Sketcher.Constraint("Symmetric", 12, 3, 31, 3, -1, 1),
    Sketcher.Constraint("Symmetric", 13, 3, 32, 3, -1, 1),
    Sketcher.Constraint("Symmetric", 14, 3, 33, 3, -1, 1),
    Sketcher.Constraint("Symmetric", 15, 3, 34, 3, -1, 1),
    Sketcher.Constraint("Symmetric", 10, 3, 35, 3, -1, 1),
    Sketcher.Constraint("Symmetric", 16, 3, 36, 3, -1, 1),
    Sketcher.Constraint("Symmetric", 17, 3, 37, 3, -1, 1),
    Sketcher.Constraint("Symmetric", 18, 3, 38, 3, -1, 1),
    Sketcher.Constraint("Symmetric", 19, 3, 39, 3, -1, 1),
    Sketcher.Constraint("Symmetric", 5, 3, 10, 3, -2),
    Sketcher.Constraint("Symmetric", 0, 3, 11, 3, -2),
    Sketcher.Constraint("Symmetric", 1, 3, 12, 3, -2),
    Sketcher.Constraint("Symmetric", 2, 3, 13, 3, -2),
    Sketcher.Constraint("Symmetric", 3, 3, 14, 3, -2),
    Sketcher.Constraint("Symmetric", 4, 3, 15, 3, -2),
    Sketcher.Constraint("Symmetric", 6, 3, 16, 3, -2),
    Sketcher.Constraint("Symmetric", 7, 3, 17, 3, -2),
    Sketcher.Constraint("Symmetric", 8, 3, 18, 3, -2),
    Sketcher.Constraint("Symmetric", 9, 3, 19, 3, -2),
    Sketcher.Constraint("Horizontal", 0, 3, 1, 3),
    Sketcher.Constraint("Horizontal", 1, 3, 2, 3),
    Sketcher.Constraint("Horizontal", 2, 3, 3, 3),
    Sketcher.Constraint("Horizontal", 3, 3, 4, 3),
    Sketcher.Constraint("Horizontal", 5, 3, 6, 3),
    Sketcher.Constraint("Horizontal", 6, 3, 7, 3),
    Sketcher.Constraint("Horizontal", 7, 3, 8, 3),
    Sketcher.Constraint("Horizontal", 8, 3, 9, 3),
    Sketcher.Constraint("Vertical", 0, 3, 5, 3),
    Sketcher.Constraint("Vertical", 1, 3, 6, 3),
    Sketcher.Constraint("Vertical", 2, 3, 7, 3),
    Sketcher.Constraint("Vertical", 3, 3, 8, 3),
    Sketcher.Constraint("Vertical", 4, 3, 9, 3),
    Sketcher.Constraint("DistanceY", -1, 1, 5, 3, Q("5 in")),
    Sketcher.Constraint("Diameter", 0, 3.2),
    Sketcher.Constraint("DistanceX", 0, 3, -1, 1, Q("2.3388 in")),
    Sketcher.Constraint("DistanceY", -1, 1, 0, 3, 95.8),
    Sketcher.Constraint("DistanceX", 1, 3, 0, 3, 6.4),
    Sketcher.Constraint("DistanceX", 2, 3, 1, 3, 6.4),
    Sketcher.Constraint("DistanceX", 3, 3, 2, 3, 6.4),
    Sketcher.Constraint("DistanceX", 4, 3, 3, 3, 6.4),
])
pocket2 = doc.addObject("PartDesign::Pocket", "Pocket001")
body.addObject(pocket2)
pocket2.Profile = sketch3
pocket2.Length = Q("0.25 in")
pocket2.Reversed = True

doc.recompute()
